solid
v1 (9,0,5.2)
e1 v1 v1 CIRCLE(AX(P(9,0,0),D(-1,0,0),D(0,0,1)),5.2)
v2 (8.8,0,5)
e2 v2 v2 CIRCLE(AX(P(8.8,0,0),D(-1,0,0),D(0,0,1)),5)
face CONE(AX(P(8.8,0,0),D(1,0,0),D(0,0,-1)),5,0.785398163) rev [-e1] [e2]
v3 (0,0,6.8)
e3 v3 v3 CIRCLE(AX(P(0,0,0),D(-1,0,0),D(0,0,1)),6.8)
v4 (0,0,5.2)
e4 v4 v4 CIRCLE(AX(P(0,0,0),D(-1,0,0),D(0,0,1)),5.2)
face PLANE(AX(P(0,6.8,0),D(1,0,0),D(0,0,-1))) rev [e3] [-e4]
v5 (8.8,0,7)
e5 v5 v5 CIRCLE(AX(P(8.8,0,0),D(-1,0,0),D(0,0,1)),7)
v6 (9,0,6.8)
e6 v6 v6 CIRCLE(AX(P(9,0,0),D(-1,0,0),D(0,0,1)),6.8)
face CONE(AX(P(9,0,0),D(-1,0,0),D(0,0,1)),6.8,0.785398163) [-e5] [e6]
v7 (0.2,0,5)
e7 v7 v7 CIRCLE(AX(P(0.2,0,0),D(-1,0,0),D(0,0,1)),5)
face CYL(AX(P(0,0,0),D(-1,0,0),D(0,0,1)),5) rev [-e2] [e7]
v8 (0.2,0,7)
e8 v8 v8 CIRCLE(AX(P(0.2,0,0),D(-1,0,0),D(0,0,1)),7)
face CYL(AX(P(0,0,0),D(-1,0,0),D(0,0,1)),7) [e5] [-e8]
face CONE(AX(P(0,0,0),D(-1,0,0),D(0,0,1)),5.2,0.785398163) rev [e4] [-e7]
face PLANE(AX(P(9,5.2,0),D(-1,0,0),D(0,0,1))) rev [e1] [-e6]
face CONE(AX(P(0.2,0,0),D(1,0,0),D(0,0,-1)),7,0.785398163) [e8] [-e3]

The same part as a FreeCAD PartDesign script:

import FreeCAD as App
import Part
import Sketcher

V = App.Vector


def add_polygon(sketch, points):
    """Adds a closed chain of lines whose ends are joined by coincident constraints."""
    first, n = sketch.GeometryCount, len(points)
    for a, b in zip(points, points[1:] + points[:1]):
        sketch.addGeometry(Part.LineSegment(App.Vector(*a, 0), App.Vector(*b, 0)), False)
    for i in range(n):
        sketch.addConstraint(Sketcher.Constraint("Coincident", first + i, 2, first + (i + 1) % n, 1))

doc = App.newDocument("Part")
body = doc.addObject("PartDesign::Body", "Body")

# Sketch on XY plane
sketch1 = body.newObject("Sketcher::SketchObject", "Sketch")
sketch1.AttachmentSupport = (doc.getObject("XY_Plane"), [""])
sketch1.MapMode = "FlatFace"
add_polygon(sketch1, [(0.2, 5), (8.8, 5), (9, 5.2), (9, 6.8), (8.8, 7), (0.2, 7), (0, 6.8), (0, 5.2)])  # lines 0-7
sketch1.addConstraint([
    Sketcher.Constraint("Horizontal", 0),
    Sketcher.Constraint("Vertical", 2),
    Sketcher.Constraint("Horizontal", 4),
    Sketcher.Constraint("Vertical", 6),
    Sketcher.Constraint("PointOnObject", 5, 2, -2),
    Sketcher.Constraint("Perpendicular", 1, 3),
    Sketcher.Constraint("Perpendicular", 3, 5),
    Sketcher.Constraint("Perpendicular", 5, 7),
    Sketcher.Constraint("Horizontal", 2, 2, 5, 2),
    Sketcher.Constraint("Horizontal", 1, 2, 6, 2),
    Sketcher.Constraint("Vertical", 0, 2, 3, 2),
    Sketcher.Constraint("Vertical", 4, 2, 7, 2),
    Sketcher.Constraint("DistanceX", 0, 1, 0, 2, 8.6),
    Sketcher.Constraint("DistanceY", 2, 1, 2, 2, 1.6),
    Sketcher.Constraint("DistanceY", -1, 1, 0, 2, 5.0),
    Sketcher.Constraint("DistanceX", -1, 1, 1, 2, 9.0),
])
revolution = body.newObject("PartDesign::Revolution", "Revolution")
revolution.Profile = sketch1
revolution.ReferenceAxis = (sketch1, ["H_Axis"])
revolution.Angle = 360

doc.recompute()
